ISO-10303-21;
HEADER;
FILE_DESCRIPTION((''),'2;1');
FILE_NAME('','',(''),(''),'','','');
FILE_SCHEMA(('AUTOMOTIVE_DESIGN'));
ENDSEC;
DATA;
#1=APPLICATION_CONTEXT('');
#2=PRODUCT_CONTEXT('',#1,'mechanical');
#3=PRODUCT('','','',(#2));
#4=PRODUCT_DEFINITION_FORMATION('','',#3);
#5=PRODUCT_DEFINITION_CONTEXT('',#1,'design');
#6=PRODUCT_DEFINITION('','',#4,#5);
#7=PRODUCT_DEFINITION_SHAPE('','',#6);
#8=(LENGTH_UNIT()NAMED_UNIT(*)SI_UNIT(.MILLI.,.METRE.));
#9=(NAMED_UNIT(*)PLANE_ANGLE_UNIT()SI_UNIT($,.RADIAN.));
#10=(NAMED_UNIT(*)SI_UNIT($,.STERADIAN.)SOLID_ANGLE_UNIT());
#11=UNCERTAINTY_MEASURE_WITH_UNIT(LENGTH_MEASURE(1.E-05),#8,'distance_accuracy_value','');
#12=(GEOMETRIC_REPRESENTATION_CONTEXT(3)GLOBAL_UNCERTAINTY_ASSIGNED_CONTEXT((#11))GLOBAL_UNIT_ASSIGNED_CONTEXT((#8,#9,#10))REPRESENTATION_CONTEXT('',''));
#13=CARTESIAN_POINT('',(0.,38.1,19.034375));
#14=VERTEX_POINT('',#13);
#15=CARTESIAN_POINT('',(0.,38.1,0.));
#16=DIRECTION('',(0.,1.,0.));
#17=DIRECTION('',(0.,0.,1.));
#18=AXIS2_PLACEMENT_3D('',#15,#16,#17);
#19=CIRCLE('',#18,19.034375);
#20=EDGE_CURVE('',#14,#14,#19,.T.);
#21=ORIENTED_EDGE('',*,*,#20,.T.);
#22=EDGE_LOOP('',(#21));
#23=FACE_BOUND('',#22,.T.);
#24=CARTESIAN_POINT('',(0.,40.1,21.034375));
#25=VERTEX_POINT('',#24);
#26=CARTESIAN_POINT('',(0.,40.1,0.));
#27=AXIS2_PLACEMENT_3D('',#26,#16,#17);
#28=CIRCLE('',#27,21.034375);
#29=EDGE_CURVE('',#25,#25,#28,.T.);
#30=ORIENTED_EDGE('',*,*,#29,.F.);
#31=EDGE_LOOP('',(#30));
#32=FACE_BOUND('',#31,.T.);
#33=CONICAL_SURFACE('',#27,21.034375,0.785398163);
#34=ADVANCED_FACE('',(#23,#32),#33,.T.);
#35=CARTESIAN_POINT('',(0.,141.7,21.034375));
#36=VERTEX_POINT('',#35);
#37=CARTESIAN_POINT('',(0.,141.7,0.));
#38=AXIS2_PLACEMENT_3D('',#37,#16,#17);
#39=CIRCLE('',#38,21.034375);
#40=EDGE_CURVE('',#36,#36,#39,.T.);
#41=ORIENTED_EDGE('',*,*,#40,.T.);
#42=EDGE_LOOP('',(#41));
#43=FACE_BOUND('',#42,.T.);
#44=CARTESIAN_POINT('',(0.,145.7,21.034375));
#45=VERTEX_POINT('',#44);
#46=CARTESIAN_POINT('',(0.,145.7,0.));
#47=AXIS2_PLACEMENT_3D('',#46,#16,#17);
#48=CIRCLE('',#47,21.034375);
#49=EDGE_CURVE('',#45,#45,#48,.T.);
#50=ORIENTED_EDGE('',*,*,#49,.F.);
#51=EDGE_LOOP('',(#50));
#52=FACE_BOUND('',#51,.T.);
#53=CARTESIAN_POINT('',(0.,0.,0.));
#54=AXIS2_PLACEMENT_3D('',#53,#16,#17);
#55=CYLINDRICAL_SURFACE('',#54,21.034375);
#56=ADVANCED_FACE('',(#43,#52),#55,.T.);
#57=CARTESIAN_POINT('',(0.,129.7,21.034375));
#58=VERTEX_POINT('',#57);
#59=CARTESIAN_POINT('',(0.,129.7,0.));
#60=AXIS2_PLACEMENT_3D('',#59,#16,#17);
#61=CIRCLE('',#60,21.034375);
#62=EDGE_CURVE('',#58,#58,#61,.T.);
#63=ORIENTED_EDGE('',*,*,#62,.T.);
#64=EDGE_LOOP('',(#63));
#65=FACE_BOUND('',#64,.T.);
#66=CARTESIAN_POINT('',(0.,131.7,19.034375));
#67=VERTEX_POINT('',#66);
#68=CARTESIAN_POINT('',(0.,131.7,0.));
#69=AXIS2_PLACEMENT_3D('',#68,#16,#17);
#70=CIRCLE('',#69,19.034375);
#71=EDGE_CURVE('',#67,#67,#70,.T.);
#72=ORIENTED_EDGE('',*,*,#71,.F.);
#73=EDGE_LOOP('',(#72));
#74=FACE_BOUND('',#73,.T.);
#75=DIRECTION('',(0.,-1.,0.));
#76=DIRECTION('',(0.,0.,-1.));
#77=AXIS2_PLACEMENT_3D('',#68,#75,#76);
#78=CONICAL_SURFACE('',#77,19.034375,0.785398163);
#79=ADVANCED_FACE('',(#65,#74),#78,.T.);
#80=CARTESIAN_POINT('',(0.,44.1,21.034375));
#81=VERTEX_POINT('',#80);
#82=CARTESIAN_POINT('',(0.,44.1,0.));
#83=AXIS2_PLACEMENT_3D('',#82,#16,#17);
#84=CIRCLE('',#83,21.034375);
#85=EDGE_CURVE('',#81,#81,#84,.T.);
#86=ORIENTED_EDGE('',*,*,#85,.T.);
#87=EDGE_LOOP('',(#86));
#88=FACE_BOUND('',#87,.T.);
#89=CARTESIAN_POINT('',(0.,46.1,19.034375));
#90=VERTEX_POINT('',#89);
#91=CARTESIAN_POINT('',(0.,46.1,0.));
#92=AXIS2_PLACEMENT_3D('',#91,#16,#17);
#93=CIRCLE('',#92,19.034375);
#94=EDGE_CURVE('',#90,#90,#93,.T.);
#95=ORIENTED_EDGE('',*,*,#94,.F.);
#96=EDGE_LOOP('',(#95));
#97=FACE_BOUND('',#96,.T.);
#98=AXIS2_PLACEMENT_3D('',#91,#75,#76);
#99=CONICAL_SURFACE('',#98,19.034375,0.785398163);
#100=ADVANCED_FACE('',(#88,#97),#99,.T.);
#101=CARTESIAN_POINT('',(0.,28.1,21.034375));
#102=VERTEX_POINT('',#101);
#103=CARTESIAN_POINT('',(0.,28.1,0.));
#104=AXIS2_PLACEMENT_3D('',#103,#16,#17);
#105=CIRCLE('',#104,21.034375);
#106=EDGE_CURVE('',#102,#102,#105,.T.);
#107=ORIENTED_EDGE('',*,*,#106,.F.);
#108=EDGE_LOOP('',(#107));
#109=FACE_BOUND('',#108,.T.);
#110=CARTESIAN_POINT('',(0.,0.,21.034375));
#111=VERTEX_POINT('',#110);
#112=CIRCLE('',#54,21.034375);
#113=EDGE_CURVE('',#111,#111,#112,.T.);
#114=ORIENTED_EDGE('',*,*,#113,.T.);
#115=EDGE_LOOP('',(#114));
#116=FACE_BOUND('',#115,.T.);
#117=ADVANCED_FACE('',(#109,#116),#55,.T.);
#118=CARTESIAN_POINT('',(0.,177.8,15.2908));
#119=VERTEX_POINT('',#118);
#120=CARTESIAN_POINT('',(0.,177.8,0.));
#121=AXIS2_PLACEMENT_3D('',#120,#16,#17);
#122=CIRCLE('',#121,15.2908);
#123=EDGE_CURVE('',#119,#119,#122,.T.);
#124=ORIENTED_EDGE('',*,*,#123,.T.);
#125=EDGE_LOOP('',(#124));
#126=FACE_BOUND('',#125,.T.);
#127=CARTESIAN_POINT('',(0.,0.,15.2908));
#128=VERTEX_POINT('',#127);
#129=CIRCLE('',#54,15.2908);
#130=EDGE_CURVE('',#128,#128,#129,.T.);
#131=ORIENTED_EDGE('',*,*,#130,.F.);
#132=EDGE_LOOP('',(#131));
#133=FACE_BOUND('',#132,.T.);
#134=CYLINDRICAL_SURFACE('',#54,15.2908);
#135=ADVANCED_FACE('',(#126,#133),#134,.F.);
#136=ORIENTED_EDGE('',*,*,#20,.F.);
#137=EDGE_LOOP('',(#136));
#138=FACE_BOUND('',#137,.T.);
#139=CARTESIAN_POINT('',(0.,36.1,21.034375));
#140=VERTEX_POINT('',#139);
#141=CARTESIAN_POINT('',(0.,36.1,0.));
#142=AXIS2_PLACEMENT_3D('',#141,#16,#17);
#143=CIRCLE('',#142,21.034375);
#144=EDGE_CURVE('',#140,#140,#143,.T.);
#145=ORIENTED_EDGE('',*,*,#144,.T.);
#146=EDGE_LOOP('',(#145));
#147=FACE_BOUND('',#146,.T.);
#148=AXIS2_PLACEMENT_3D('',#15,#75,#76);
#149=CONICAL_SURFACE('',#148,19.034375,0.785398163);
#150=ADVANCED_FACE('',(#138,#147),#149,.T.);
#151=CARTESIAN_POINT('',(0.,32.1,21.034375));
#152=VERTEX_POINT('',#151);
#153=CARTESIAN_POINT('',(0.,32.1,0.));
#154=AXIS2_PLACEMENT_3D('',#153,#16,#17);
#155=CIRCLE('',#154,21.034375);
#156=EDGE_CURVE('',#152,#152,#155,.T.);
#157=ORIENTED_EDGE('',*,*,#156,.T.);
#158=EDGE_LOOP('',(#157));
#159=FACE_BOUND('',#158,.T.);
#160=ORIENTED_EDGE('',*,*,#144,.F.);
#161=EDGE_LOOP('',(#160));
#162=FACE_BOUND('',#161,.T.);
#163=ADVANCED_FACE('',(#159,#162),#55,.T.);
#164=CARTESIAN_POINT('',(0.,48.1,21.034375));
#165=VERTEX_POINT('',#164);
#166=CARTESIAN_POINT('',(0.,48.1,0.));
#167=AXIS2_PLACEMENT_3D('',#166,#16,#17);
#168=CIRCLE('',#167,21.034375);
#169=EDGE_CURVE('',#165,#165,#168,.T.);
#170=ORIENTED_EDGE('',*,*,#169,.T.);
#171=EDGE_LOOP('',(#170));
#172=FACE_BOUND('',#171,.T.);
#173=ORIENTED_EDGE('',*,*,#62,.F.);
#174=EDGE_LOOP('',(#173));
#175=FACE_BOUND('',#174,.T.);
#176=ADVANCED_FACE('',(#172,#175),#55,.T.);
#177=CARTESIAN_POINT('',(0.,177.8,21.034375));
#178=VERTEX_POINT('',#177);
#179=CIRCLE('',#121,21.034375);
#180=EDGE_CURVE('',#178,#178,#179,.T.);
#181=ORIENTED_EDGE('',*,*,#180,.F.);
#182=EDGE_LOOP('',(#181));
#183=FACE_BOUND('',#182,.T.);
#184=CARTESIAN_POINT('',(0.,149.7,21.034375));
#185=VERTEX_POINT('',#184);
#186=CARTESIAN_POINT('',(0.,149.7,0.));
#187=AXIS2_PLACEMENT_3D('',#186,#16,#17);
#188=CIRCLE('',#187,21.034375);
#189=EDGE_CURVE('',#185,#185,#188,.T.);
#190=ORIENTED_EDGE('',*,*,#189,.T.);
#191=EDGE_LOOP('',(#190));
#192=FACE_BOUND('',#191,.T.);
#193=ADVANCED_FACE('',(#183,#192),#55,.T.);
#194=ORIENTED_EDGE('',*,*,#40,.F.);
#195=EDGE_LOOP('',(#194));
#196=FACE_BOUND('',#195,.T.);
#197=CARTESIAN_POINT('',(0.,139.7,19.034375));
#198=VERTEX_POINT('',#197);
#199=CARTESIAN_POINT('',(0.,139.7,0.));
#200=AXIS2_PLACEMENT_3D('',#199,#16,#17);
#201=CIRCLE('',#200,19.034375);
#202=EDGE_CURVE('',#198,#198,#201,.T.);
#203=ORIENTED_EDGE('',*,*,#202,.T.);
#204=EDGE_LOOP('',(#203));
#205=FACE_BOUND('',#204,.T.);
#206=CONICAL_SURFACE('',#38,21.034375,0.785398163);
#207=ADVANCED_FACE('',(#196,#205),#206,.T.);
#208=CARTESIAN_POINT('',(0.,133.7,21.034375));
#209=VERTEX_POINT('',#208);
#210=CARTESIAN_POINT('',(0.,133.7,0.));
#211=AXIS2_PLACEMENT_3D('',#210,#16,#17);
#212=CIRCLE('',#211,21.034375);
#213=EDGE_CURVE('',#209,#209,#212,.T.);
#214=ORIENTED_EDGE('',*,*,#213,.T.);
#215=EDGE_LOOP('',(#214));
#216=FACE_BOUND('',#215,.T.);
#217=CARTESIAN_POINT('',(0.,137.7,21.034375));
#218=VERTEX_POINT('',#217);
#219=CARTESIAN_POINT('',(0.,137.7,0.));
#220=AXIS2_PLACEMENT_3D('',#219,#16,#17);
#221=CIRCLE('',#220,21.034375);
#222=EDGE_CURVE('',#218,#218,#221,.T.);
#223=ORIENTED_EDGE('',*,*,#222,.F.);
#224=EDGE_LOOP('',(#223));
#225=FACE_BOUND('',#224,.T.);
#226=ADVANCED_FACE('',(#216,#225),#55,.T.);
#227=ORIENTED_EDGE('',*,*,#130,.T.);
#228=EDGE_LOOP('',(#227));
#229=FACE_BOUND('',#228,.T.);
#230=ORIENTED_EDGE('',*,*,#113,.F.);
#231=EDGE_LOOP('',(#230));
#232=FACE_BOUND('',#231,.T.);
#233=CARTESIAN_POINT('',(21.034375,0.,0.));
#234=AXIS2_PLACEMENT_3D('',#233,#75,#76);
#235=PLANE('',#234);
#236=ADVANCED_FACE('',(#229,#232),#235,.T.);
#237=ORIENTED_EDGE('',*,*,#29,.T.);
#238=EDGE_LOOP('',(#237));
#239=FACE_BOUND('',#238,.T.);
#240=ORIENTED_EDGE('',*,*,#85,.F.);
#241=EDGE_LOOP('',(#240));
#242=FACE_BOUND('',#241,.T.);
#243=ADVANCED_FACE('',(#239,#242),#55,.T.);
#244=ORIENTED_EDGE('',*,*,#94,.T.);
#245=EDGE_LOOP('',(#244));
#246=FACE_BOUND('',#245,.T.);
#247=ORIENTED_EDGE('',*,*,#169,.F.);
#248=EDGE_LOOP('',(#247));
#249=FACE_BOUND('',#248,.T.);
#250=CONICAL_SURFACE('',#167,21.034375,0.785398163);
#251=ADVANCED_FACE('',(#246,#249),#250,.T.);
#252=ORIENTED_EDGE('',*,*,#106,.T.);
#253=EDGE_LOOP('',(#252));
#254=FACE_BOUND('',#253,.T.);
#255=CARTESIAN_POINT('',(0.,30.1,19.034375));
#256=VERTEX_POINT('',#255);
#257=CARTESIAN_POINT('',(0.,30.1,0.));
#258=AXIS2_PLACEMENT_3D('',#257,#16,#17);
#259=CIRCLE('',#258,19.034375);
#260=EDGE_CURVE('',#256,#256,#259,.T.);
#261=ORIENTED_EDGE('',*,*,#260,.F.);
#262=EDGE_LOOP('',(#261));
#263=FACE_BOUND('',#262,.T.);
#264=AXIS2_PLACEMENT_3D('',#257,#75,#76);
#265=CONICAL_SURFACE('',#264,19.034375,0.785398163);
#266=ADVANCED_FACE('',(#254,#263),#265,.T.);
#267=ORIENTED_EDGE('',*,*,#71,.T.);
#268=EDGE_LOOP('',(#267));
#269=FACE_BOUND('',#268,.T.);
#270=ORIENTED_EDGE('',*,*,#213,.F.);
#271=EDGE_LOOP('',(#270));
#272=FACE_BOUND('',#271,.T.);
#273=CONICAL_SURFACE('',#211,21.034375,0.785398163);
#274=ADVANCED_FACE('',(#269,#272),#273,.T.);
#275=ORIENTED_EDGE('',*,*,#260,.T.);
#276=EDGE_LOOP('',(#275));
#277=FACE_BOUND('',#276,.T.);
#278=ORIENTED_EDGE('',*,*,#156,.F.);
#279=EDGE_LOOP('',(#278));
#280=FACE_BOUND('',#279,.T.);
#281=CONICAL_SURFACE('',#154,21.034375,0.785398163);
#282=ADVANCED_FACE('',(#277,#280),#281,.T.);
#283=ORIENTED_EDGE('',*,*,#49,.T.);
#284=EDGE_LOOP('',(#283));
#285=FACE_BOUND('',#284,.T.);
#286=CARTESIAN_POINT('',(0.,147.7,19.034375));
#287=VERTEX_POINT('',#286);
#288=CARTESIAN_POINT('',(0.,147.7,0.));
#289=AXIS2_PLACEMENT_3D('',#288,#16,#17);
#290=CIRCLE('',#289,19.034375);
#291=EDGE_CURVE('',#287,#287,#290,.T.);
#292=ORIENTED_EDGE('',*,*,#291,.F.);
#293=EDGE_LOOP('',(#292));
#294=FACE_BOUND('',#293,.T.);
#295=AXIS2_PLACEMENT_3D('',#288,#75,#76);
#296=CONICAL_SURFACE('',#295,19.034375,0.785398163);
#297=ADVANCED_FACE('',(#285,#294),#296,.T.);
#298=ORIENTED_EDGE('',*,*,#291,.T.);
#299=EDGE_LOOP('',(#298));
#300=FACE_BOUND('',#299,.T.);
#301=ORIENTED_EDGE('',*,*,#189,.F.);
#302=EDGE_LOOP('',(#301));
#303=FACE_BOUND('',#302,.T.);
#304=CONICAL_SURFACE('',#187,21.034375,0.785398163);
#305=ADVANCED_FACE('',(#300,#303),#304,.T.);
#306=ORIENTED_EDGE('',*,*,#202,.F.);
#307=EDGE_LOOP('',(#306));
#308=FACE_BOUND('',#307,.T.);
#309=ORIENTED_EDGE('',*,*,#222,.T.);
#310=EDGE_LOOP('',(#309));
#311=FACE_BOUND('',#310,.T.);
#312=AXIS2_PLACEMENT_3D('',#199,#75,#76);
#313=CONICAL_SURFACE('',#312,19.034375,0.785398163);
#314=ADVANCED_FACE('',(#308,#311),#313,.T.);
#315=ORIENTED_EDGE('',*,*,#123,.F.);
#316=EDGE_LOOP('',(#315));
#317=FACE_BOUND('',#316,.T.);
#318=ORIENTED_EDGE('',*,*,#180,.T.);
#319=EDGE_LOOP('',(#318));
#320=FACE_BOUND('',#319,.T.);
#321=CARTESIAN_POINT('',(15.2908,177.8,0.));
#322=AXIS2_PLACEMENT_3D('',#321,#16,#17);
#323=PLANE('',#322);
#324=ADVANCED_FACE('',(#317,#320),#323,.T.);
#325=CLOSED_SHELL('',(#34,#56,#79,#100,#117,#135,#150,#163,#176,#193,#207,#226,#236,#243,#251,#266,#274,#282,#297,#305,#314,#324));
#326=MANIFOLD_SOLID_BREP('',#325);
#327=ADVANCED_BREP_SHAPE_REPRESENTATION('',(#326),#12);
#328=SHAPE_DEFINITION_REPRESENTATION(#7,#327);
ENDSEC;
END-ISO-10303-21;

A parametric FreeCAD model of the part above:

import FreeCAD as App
import Part
import Sketcher
from FreeCAD import Vector
Q = App.Units.Quantity

doc = App.newDocument("Part")
params = doc.addObject("Spreadsheet::Sheet", "Params")
for row, (alias, value) in enumerate([
    ("sketch1_height", "4 mm"),
    ("sketch1_height2", "28.1 mm"),
    ("sketch1_height3", "81.6 mm"),
    ("sketch1_height4", "177.8 mm"),
    ("revolution_angle", "360 deg"),
], start=1):
    params.set(f"A{row}", alias)
    params.set(f"B{row}", "=" + value)
    params.setAlias(f"B{row}", alias)

body = doc.addObject("PartDesign::Body", "Body")

# Sketch on XY plane
sketch1 = body.newObject("Sketcher::SketchObject", "Sketch")
sketch1.AttachmentSupport = (doc.getObject("XY_Plane"), [""])
sketch1.MapMode = "FlatFace"
sketch1.addGeometry([
    Part.LineSegment(Vector(15.3, 177.8, 0), Vector(21, 177.8, 0)),  # 0
    Part.LineSegment(Vector(21, 177.8, 0), Vector(21, 149.7, 0)),  # 1
    Part.LineSegment(Vector(21, 149.7, 0), Vector(19, 147.7, 0)),  # 2
    Part.LineSegment(Vector(19, 147.7, 0), Vector(21, 145.7, 0)),  # 3
    Part.LineSegment(Vector(21, 145.7, 0), Vector(21, 141.7, 0)),  # 4
    Part.LineSegment(Vector(21, 141.7, 0), Vector(19, 139.7, 0)),  # 5
    Part.LineSegment(Vector(19, 139.7, 0), Vector(21, 137.7, 0)),  # 6
    Part.LineSegment(Vector(21, 137.7, 0), Vector(21, 133.7, 0)),  # 7
    Part.LineSegment(Vector(21, 133.7, 0), Vector(19, 131.7, 0)),  # 8
    Part.LineSegment(Vector(19, 131.7, 0), Vector(21, 129.7, 0)),  # 9
    Part.LineSegment(Vector(21, 129.7, 0), Vector(21, 48.1, 0)),  # 10
    Part.LineSegment(Vector(21, 48.1, 0), Vector(19, 46.1, 0)),  # 11
    Part.LineSegment(Vector(19, 46.1, 0), Vector(21, 44.1, 0)),  # 12
    Part.LineSegment(Vector(21, 44.1, 0), Vector(21, 40.1, 0)),  # 13
    Part.LineSegment(Vector(21, 40.1, 0), Vector(19, 38.1, 0)),  # 14
    Part.LineSegment(Vector(19, 38.1, 0), Vector(21, 36.1, 0)),  # 15
    Part.LineSegment(Vector(21, 36.1, 0), Vector(21, 32.1, 0)),  # 16
    Part.LineSegment(Vector(21, 32.1, 0), Vector(19, 30.1, 0)),  # 17
    Part.LineSegment(Vector(19, 30.1, 0), Vector(21, 28.1, 0)),  # 18
    Part.LineSegment(Vector(21, 28.1, 0), Vector(21, 0, 0)),  # 19
    Part.LineSegment(Vector(21, 0, 0), Vector(15.3, 0, 0)),  # 20
    Part.LineSegment(Vector(15.3, 0, 0), Vector(15.3, 177.8, 0)),  # 21
], False)
sketch1.addConstraint([
    Sketcher.Constraint("Coincident", 0, 2, 1, 1),
    Sketcher.Constraint("Coincident", 1, 2, 2, 1),
    Sketcher.Constraint("Coincident", 2, 2, 3, 1),
    Sketcher.Constraint("Coincident", 3, 2, 4, 1),
    Sketcher.Constraint("Coincident", 4, 2, 5, 1),
    Sketcher.Constraint("Coincident", 5, 2, 6, 1),
    Sketcher.Constraint("Coincident", 6, 2, 7, 1),
    Sketcher.Constraint("Coincident", 7, 2, 8, 1),
    Sketcher.Constraint("Coincident", 8, 2, 9, 1),
    Sketcher.Constraint("Coincident", 9, 2, 10, 1),
    Sketcher.Constraint("Coincident", 10, 2, 11, 1),
    Sketcher.Constraint("Coincident", 11, 2, 12, 1),
    Sketcher.Constraint("Coincident", 12, 2, 13, 1),
    Sketcher.Constraint("Coincident", 13, 2, 14, 1),
    Sketcher.Constraint("Coincident", 14, 2, 15, 1),
    Sketcher.Constraint("Coincident", 15, 2, 16, 1),
    Sketcher.Constraint("Coincident", 16, 2, 17, 1),
    Sketcher.Constraint("Coincident", 17, 2, 18, 1),
    Sketcher.Constraint("Coincident", 18, 2, 19, 1),
    Sketcher.Constraint("Coincident", 19, 2, 20, 1),
    Sketcher.Constraint("Coincident", 20, 2, 21, 1),
    Sketcher.Constraint("Coincident", 21, 2, 0, 1),
    Sketcher.Constraint("Horizontal", 0),
    Sketcher.Constraint("Vertical", 1),
    Sketcher.Constraint("Vertical", 4),
    Sketcher.Constraint("Vertical", 7),
    Sketcher.Constraint("Vertical", 10),
    Sketcher.Constraint("Vertical", 13),
    Sketcher.Constraint("Vertical", 16),
    Sketcher.Constraint("Vertical", 19),
    Sketcher.Constraint("Horizontal", 20),
    Sketcher.Constraint("Vertical", 21),
    Sketcher.Constraint("PointOnObject", 19, 2, -1),
    Sketcher.Constraint("Perpendicular", 2, 3),
    Sketcher.Constraint("Perpendicular", 3, 5),
    Sketcher.Constraint("Perpendicular", 5, 6),
    Sketcher.Constraint("Perpendicular", 6, 8),
    Sketcher.Constraint("Perpendicular", 8, 9),
    Sketcher.Constraint("Perpendicular", 9, 11),
    Sketcher.Constraint("Perpendicular", 11, 12),
    Sketcher.Constraint("Perpendicular", 12, 14),
    Sketcher.Constraint("Perpendicular", 14, 15),
    Sketcher.Constraint("Perpendicular", 15, 17),
    Sketcher.Constraint("Perpendicular", 17, 18),
    Sketcher.Constraint("Vertical", 1, 2, 3, 2),
    Sketcher.Constraint("Vertical", 2, 2, 5, 2),
    Sketcher.Constraint("Vertical", 4, 2, 6, 2),
    Sketcher.Constraint("Vertical", 5, 2, 8, 2),
    Sketcher.Constraint("Vertical", 7, 2, 9, 2),
    Sketcher.Constraint("Vertical", 8, 2, 11, 2),
    Sketcher.Constraint("Vertical", 10, 2, 12, 2),
    Sketcher.Constraint("Vertical", 11, 2, 14, 2),
    Sketcher.Constraint("Vertical", 13, 2, 15, 2),
    Sketcher.Constraint("Vertical", 14, 2, 17, 2),
    Sketcher.Constraint("Vertical", 16, 2, 18, 2),
    Sketcher.Constraint("Equal", 4, 7),
    Sketcher.Constraint("Equal", 7, 13),
    Sketcher.Constraint("Equal", 13, 16),
    Sketcher.Constraint("Equal", 1, 19),
    Sketcher.Constraint("Equal", 2, 3),
    Sketcher.Constraint("DistanceY", 4, 2, 4, 1, Q("4 mm")),
    Sketcher.Constraint("DistanceY", 1, 2, 1, 1, Q("28.1 mm")),
    Sketcher.Constraint("DistanceY", 10, 2, 10, 1, Q("81.6 mm")),
    Sketcher.Constraint("DistanceY", 21, 1, 21, 2, Q("177.8 mm")),
    Sketcher.Constraint("DistanceX", -1, 1, 20, 2, Q("15.2908 mm")),
    Sketcher.Constraint("DistanceX", 0, 1, 0, 2, Q("5.743575 mm")),
])
sketch1.setExpression("Constraints[60]", "Params.sketch1_height")
sketch1.setExpression("Constraints[61]", "Params.sketch1_height2")
sketch1.setExpression("Constraints[62]", "Params.sketch1_height3")
sketch1.setExpression("Constraints[63]", "Params.sketch1_height4")
revolution = body.newObject("PartDesign::Revolution", "Revolution")
revolution.Profile = sketch1
revolution.ReferenceAxis = (sketch1, ["V_Axis"])
revolution.setExpression("Angle", "Params.revolution_angle")

doc.recompute()
